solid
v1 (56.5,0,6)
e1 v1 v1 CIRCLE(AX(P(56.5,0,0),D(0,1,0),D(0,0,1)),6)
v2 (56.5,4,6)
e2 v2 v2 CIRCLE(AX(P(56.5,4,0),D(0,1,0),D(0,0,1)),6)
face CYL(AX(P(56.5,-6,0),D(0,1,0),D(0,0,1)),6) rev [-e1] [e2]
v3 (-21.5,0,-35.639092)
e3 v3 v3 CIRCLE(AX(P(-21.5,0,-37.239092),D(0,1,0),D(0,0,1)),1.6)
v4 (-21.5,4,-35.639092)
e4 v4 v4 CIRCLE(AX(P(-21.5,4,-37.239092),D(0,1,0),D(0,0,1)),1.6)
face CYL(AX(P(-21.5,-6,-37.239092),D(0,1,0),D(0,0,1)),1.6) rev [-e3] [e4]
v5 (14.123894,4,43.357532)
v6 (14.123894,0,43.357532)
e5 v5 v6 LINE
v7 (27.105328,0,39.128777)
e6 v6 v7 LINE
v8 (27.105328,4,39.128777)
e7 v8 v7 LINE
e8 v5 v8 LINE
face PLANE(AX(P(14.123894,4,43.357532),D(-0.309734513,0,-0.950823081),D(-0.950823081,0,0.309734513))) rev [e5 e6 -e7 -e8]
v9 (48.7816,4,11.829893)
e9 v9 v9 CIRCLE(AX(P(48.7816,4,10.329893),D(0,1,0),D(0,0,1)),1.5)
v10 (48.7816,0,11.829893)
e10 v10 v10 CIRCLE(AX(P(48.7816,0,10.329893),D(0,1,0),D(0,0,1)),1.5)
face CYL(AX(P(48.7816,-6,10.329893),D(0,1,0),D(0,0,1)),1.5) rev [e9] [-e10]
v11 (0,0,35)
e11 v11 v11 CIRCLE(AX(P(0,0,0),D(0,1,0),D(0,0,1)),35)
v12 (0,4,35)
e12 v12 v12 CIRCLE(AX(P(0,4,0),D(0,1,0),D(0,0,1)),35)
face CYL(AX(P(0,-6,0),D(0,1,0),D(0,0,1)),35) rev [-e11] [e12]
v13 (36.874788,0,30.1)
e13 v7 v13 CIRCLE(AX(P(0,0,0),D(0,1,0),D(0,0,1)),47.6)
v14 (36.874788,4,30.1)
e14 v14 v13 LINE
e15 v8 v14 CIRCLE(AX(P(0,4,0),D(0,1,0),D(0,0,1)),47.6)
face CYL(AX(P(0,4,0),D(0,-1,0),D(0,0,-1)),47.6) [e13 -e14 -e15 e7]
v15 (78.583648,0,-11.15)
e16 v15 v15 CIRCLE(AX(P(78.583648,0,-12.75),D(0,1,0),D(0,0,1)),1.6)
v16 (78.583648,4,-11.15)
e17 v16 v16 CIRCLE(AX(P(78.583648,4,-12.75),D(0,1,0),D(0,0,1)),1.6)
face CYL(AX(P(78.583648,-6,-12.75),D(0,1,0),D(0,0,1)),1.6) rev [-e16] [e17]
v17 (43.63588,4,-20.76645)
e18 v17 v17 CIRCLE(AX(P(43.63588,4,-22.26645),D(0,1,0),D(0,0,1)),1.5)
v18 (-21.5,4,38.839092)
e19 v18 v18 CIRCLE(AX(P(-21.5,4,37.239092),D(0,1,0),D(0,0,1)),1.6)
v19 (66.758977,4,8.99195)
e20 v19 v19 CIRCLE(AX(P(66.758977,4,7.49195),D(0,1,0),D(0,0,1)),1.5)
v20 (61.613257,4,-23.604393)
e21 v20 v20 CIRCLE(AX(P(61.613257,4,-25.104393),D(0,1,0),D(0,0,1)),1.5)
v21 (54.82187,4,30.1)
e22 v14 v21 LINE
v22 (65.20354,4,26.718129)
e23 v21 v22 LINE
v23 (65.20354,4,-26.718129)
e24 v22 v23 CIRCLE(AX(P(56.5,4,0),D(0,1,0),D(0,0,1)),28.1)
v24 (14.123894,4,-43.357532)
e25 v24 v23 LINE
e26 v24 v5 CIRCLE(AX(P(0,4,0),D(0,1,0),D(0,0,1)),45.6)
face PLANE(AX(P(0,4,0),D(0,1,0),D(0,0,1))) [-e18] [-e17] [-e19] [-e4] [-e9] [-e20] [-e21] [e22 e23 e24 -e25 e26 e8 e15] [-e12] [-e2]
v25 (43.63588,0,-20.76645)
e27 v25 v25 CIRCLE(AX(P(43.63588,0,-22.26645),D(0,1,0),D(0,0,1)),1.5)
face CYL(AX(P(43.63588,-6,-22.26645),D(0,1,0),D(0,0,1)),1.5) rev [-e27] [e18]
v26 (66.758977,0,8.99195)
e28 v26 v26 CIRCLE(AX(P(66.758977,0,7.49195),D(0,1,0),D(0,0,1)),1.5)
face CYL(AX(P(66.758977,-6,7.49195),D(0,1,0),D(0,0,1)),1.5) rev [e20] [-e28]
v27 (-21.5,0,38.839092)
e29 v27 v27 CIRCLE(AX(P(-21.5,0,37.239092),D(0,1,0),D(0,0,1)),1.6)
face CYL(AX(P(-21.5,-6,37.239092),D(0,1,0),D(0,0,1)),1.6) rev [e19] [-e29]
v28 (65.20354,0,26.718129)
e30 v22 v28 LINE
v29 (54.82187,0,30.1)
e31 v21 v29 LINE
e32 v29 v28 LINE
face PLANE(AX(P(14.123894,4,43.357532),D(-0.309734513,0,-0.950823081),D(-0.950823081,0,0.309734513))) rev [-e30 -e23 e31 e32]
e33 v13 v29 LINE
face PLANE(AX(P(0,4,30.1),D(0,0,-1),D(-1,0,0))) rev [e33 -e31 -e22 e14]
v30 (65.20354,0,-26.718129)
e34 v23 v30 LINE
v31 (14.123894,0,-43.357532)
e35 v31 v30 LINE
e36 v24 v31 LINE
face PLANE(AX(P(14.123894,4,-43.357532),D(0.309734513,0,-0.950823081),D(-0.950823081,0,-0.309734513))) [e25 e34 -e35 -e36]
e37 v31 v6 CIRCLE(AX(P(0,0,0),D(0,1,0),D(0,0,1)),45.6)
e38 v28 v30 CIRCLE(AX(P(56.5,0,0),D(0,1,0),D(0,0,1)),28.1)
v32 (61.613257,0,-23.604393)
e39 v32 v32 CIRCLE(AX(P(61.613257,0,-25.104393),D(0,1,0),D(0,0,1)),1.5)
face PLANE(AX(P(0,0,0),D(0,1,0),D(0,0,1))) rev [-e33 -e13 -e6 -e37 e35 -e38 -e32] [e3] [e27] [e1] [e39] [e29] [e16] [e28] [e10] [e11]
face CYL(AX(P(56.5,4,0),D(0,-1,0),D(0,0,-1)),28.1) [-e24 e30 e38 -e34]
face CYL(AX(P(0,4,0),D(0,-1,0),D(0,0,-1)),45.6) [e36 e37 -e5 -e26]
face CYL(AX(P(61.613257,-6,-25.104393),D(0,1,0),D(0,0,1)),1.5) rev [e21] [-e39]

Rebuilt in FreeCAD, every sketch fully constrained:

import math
import FreeCAD as App
import Part
import Sketcher

V = App.Vector
Q = App.Units.Quantity

doc = App.newDocument("Part")
body = doc.addObject("PartDesign::Body", "Body")

# Sketch on XZ plane
sketch1 = body.newObject("Sketcher::SketchObject", "Sketch")
sketch1.AttachmentSupport = (doc.getObject("XZ_Plane"), [""])
sketch1.MapMode = "FlatFace"
sketch1.addGeometry(Part.ArcOfCircle(Part.Circle(V(0, 0, 0), V(0, 0, 1), 46), math.radians(72), math.radians(288)), False)
sketch1.addGeometry(Part.LineSegment(V(14, 43, 0), V(27, 39, 0)), False)
sketch1.addGeometry(Part.ArcOfCircle(Part.Circle(V(0, 0, 0), V(0, 0, 1), 48), math.radians(39.22), math.radians(55.29)), False)
sketch1.addGeometry(Part.LineSegment(V(37, 30, 0), V(55, 30, 0)), False)
sketch1.addGeometry(Part.LineSegment(V(55, 30, 0), V(65, 27, 0)), False)
sketch1.addGeometry(Part.ArcOfCircle(Part.Circle(V(56, 0, 0), V(0, 0, 1), 28), math.radians(-72), math.radians(72)), False)
sketch1.addGeometry(Part.LineSegment(V(65, -27, 0), V(14, -43, 0)), False)
sketch1.addConstraint(Sketcher.Constraint("Tangent", 0, 1, 1, 1))
sketch1.addConstraint(Sketcher.Constraint("Coincident", 1, 2, 2, 2))
sketch1.addConstraint(Sketcher.Constraint("Coincident", 2, 1, 3, 1))
sketch1.addConstraint(Sketcher.Constraint("Coincident", 3, 2, 4, 1))
sketch1.addConstraint(Sketcher.Constraint("Tangent", 4, 2, 5, 2))
sketch1.addConstraint(Sketcher.Constraint("Tangent", 5, 1, 6, 1))
sketch1.addConstraint(Sketcher.Constraint("Tangent", 6, 2, 0, 2))
sketch1.addConstraint(Sketcher.Constraint("Horizontal", 3))
sketch1.addConstraint(Sketcher.Constraint("Coincident", 0, 3, -1, 1))
sketch1.addConstraint(Sketcher.Constraint("Coincident", 2, 3, -1, 1))
sketch1.addConstraint(Sketcher.Constraint("Symmetric", 4, 2, 5, 1, -1))
sketch1.addConstraint(Sketcher.Constraint("Parallel", 1, 4))
sketch1.addConstraint(Sketcher.Constraint("Radius", 0, Q("45.6 mm")))
sketch1.addConstraint(Sketcher.Constraint("Radius", 2, Q("47.6 mm")))
sketch1.addConstraint(Sketcher.Constraint("Radius", 5, Q("28.1 mm")))
sketch1.addConstraint(Sketcher.Constraint("DistanceX", -1, 1, 5, 3, Q("56.5 mm")))
sketch1.addConstraint(Sketcher.Constraint("DistanceY", -1, 1, 2, 1, Q("30.1 mm")))
pad1 = body.newObject("PartDesign::Pad", "Pad")
pad1.Profile = sketch1
pad1.Length = 4
pad1.Reversed = True

# Sketch on XZ plane
sketch2 = body.newObject("Sketcher::SketchObject", "Sketch001")
sketch2.AttachmentSupport = (doc.getObject("XZ_Plane"), [""])
sketch2.MapMode = "FlatFace"
sketch2.AttachmentOffset = App.Placement(V(0, 0, -4), App.Rotation())
sketch2.addGeometry(Part.Circle(V(0, 0, 0), V(0, 0, 1), 4.5), False)
sketch2.addGeometry(Part.Circle(V(56.5, 0, 0), V(0, 0, 1), 6), False)
sketch2.addConstraint(Sketcher.Constraint("Coincident", 0, 3, -1, 1))
sketch2.addConstraint(Sketcher.Constraint("PointOnObject", 1, 3, -1))
sketch2.addConstraint(Sketcher.Constraint("Diameter", 0, Q("9 mm")))
sketch2.addConstraint(Sketcher.Constraint("Diameter", 1, Q("12 mm")))
sketch2.addConstraint(Sketcher.Constraint("DistanceX", -1, 1, 1, 3, Q("56.5 mm")))
pocket1 = body.newObject("PartDesign::Pocket", "Pocket")
pocket1.Profile = sketch2
pocket1.Length = 10
pocket1.Reversed = True

# Sketch on XZ plane
sketch3 = body.newObject("Sketcher::SketchObject", "Sketch002")
sketch3.AttachmentSupport = (doc.getObject("XZ_Plane"), [""])
sketch3.MapMode = "FlatFace"
sketch3.AttachmentOffset = App.Placement(V(0, 0, -4), App.Rotation())
sketch3.addGeometry(Part.Circle(V(78.6, -12.8, 0), V(0, 0, 1), 1.6), False)
sketch3.addGeometry(Part.Circle(V(-21.5, -37.2, 0), V(0, 0, 1), 1.6), False)
sketch3.addGeometry(Part.Circle(V(-21.5, 37.2, 0), V(0, 0, 1), 1.6), False)
sketch3.addConstraint(Sketcher.Constraint("Equal", 0, 1))
sketch3.addConstraint(Sketcher.Constraint("Equal", 1, 2))
sketch3.addConstraint(Sketcher.Constraint("Symmetric", 1, 3, 2, 3, -1))
sketch3.addConstraint(Sketcher.Constraint("Diameter", 0, Q("3.2 mm")))
sketch3.addConstraint(Sketcher.Constraint("DistanceX", 1, 3, -1, 1, Q("21.5 mm")))
sketch3.addConstraint(Sketcher.Constraint("DistanceY", 0, 3, -1, 1, Q("12.75 mm")))
sketch3.addConstraint(Sketcher.Constraint("DistanceX", -1, 1, 0, 3, Q("78.583648 mm")))
sketch3.addConstraint(Sketcher.Constraint("DistanceY", 1, 3, -1, 1, Q("37.239092 mm")))
pocket2 = body.newObject("PartDesign::Pocket", "Pocket001")
pocket2.Profile = sketch3
pocket2.Length = 10
pocket2.Reversed = True

# Sketch on XZ plane
sketch4 = body.newObject("Sketcher::SketchObject", "Sketch003")
sketch4.AttachmentSupport = (doc.getObject("XZ_Plane"), [""])
sketch4.MapMode = "FlatFace"
sketch4.AttachmentOffset = App.Placement(V(0, 0, -4), App.Rotation())
sketch4.addGeometry(Part.Circle(V(0, 0, 0), V(0, 0, 1), 35), False)
sketch4.addConstraint(Sketcher.Constraint("Coincident", 0, 3, -1, 1))
sketch4.addConstraint(Sketcher.Constraint("Diameter", 0, Q("70 mm")))
pocket3 = body.newObject("PartDesign::Pocket", "Pocket002")
pocket3.Profile = sketch4
pocket3.Length = 10
pocket3.Reversed = True

# Sketch on XZ plane
sketch5 = body.newObject("Sketcher::SketchObject", "Sketch004")
sketch5.AttachmentSupport = (doc.getObject("XZ_Plane"), [""])
sketch5.MapMode = "FlatFace"
sketch5.AttachmentOffset = App.Placement(V(0, 0, -4), App.Rotation())
sketch5.addGeometry(Part.Circle(V(48.8, 10.3, 0), V(0, 0, 1), 1.5), False)
sketch5.addGeometry(Part.Circle(V(66.8, 7.5, 0), V(0, 0, 1), 1.5), False)
sketch5.addGeometry(Part.Circle(V(61.6, -25.1, 0), V(0, 0, 1), 1.5), False)
sketch5.addGeometry(Part.Circle(V(43.6, -22.3, 0), V(0, 0, 1), 1.5), False)
sketch5.addConstraint(Sketcher.Constraint("Equal", 0, 1))
sketch5.addConstraint(Sketcher.Constraint("Equal", 1, 2))
sketch5.addConstraint(Sketcher.Constraint("Equal", 2, 3))
sketch5.addConstraint(Sketcher.Constraint("Diameter", 0, Q("3 mm")))
sketch5.addConstraint(Sketcher.Constraint("DistanceX", -1, 1, 0, 3, Q("48.7816 mm")))
sketch5.addConstraint(Sketcher.Constraint("DistanceY", 3, 3, 1, 3, Q("29.7584 mm")))
sketch5.addConstraint(Sketcher.Constraint("DistanceY", -1, 1, 1, 3, Q("7.49195 mm")))
sketch5.addConstraint(Sketcher.Constraint("DistanceX", -1, 1, 3, 3, Q("43.63588 mm")))
sketch5.addConstraint(Sketcher.Constraint("DistanceX", 2, 3, 1, 3, Q("5.14572 mm")))
sketch5.addConstraint(Sketcher.Constraint("DistanceY", -1, 1, 0, 3, Q("10.329893 mm")))
sketch5.addConstraint(Sketcher.Constraint("DistanceX", -1, 1, 1, 3, Q("66.758977 mm")))
sketch5.addConstraint(Sketcher.Constraint("DistanceY", 2, 3, -1, 1, Q("25.104393 mm")))
pocket4 = body.newObject("PartDesign::Pocket", "Pocket003")
pocket4.Profile = sketch5
pocket4.Length = 10
pocket4.Reversed = True

doc.recompute()
